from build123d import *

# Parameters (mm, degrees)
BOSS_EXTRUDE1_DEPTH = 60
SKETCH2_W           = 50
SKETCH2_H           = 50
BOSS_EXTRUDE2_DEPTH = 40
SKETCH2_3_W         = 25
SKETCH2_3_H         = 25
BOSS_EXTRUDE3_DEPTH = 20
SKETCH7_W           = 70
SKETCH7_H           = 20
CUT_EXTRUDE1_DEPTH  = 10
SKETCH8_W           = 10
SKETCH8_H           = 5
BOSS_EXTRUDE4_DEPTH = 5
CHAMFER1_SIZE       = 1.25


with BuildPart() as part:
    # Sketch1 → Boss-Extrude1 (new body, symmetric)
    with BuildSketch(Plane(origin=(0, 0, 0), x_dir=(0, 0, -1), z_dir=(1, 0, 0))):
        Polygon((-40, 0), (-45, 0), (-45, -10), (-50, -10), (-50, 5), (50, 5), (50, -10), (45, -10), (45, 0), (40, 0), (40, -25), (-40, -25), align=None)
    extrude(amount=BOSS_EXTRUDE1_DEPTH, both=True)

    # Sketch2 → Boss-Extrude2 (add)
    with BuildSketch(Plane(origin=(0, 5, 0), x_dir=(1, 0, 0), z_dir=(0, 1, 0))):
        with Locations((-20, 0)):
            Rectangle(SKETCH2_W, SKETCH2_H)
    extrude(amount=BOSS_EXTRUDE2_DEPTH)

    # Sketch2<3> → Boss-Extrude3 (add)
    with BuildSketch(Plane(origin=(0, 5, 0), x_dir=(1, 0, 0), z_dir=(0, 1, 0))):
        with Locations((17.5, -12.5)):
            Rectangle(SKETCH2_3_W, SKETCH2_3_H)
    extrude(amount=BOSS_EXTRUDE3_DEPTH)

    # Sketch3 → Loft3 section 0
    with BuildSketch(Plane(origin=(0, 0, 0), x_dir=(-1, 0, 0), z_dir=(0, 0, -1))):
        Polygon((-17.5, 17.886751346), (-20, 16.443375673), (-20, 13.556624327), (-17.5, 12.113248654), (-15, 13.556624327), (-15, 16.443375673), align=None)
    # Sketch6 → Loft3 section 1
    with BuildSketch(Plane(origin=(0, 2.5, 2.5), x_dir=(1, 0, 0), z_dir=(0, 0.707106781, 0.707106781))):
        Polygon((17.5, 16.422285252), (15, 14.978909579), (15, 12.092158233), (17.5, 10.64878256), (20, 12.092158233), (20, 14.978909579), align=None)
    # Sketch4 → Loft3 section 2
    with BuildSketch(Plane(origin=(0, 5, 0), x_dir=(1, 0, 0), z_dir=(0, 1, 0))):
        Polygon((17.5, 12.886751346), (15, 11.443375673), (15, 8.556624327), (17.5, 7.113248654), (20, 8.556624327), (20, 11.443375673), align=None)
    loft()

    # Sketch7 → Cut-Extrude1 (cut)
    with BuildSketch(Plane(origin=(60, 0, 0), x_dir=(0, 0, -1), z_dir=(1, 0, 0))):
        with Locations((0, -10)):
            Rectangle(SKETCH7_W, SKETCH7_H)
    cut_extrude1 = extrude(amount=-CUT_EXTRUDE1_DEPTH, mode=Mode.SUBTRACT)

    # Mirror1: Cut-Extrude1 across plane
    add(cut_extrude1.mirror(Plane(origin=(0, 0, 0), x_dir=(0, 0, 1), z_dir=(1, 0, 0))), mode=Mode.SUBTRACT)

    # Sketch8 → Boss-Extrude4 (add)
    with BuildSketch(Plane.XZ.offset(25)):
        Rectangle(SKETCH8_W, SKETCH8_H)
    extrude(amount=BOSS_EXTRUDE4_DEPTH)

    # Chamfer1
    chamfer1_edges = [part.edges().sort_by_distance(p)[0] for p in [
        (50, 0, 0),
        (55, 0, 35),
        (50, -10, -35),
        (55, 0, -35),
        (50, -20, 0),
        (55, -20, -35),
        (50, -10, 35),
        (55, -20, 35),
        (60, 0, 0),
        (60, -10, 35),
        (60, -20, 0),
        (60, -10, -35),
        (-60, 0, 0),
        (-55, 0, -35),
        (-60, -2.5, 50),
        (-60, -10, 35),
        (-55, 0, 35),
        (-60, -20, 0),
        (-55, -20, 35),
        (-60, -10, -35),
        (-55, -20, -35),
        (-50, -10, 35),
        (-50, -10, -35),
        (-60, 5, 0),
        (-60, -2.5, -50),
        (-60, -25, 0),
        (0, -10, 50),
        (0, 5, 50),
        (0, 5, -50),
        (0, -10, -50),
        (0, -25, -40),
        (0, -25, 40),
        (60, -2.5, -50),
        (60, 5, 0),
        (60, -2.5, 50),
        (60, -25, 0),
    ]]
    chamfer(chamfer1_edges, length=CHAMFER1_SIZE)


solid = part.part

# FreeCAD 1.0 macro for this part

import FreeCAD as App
import Part
import Sketcher
Q = App.Units.Quantity


def edges_at(feature, points):
    """Names of the edges that pass closest to the given points."""
    edges = feature.Shape.Edges
    near = lambda p: min(range(len(edges)), key=lambda i: edges[i].distToShape(Part.Vertex(*p))[0])
    return sorted({f"Edge{near(p) + 1}" for p in points})


def add_polygon(sketch, points):
    """Adds a closed chain of lines whose ends are joined by coincident constraints."""
    first, n = sketch.GeometryCount, len(points)
    for a, b in zip(points, points[1:] + points[:1]):
        sketch.addGeometry(Part.LineSegment(App.Vector(*a, 0), App.Vector(*b, 0)), False)
    for i in range(n):
        sketch.addConstraint(Sketcher.Constraint("Coincident", first + i, 2, first + (i + 1) % n, 1))

doc = App.newDocument("Part")
body = doc.addObject("PartDesign::Body", "Body")

sketch1 = body.newObject("Sketcher::SketchObject", "Sketch")
sketch1.AttachmentSupport = (doc.getObject("YZ_Plane"), [""])
sketch1.MapMode = "FlatFace"
add_polygon(sketch1, [(0, 45), (0, 40), (-25, 40), (-25, -40), (0, -40), (0, -45), (-10, -45), (-10, -50), (5, -50), (5, 50), (-10, 50), (-10, 45)])
sketch1.addConstraint(Sketcher.Constraint("Vertical", 0))
sketch1.addConstraint(Sketcher.Constraint("Horizontal", 1))
sketch1.addConstraint(Sketcher.Constraint("Vertical", 2))
sketch1.addConstraint(Sketcher.Constraint("Horizontal", 3))
sketch1.addConstraint(Sketcher.Constraint("Vertical", 4))
sketch1.addConstraint(Sketcher.Constraint("Horizontal", 5))
sketch1.addConstraint(Sketcher.Constraint("Vertical", 6))
sketch1.addConstraint(Sketcher.Constraint("Horizontal", 7))
sketch1.addConstraint(Sketcher.Constraint("Vertical", 8))
sketch1.addConstraint(Sketcher.Constraint("Horizontal", 9))
sketch1.addConstraint(Sketcher.Constraint("Vertical", 10))
sketch1.addConstraint(Sketcher.Constraint("Horizontal", 11))
sketch1.addConstraint(Sketcher.Constraint("Symmetric", 0, 2, 3, 2, -1, 1))
sketch1.addConstraint(Sketcher.Constraint("Symmetric", 6, 2, 9, 2, -1))
sketch1.addConstraint(Sketcher.Constraint("Symmetric", 4, 2, 11, 2, -1))
sketch1.addConstraint(Sketcher.Constraint("Equal", 4, 6))
sketch1.addConstraint(Sketcher.Constraint("DistanceX", 1, 2, 1, 1, 25.0))
sketch1.addConstraint(Sketcher.Constraint("DistanceX", 5, 2, 5, 1, 10.0))
sketch1.addConstraint(Sketcher.Constraint("DistanceX", 7, 1, 7, 2, 15.0))
sketch1.addConstraint(Sketcher.Constraint("DistanceY", 0, 2, 0, 1, 5.0))
sketch1.addConstraint(Sketcher.Constraint("DistanceY", 2, 2, 2, 1, 80.0))
pad1 = body.newObject("PartDesign::Pad", "Pad")
pad1.Profile = sketch1
pad1.Length = 120
pad1.Midplane = True

sketch2 = body.newObject("Sketcher::SketchObject", "Sketch001")
sketch2.AttachmentSupport = (doc.getObject("XZ_Plane"), [""])
sketch2.MapMode = "FlatFace"
sketch2.AttachmentOffset = App.Placement(App.Vector(0, 0, -5), App.Rotation())
add_polygon(sketch2, [(-45, -25), (-45, 25), (5, 25), (5, -25)])
sketch2.addConstraint(Sketcher.Constraint("Vertical", 0))
sketch2.addConstraint(Sketcher.Constraint("Horizontal", 1))
sketch2.addConstraint(Sketcher.Constraint("Vertical", 2))
sketch2.addConstraint(Sketcher.Constraint("Horizontal", 3))
sketch2.addConstraint(Sketcher.Constraint("Equal", 3, 0))
sketch2.addConstraint(Sketcher.Constraint("DistanceX", 1, 1, 1, 2, 50.0))
sketch2.addConstraint(Sketcher.Constraint("DistanceX", 0, 2, -1, 1, 45.0))
sketch2.addConstraint(Sketcher.Constraint("DistanceY", -1, 1, 0, 2, 25.0))
pad2 = body.newObject("PartDesign::Pad", "Pad001")
pad2.Profile = sketch2
pad2.Length = 40
pad2.Reversed = True

sketch3 = body.newObject("Sketcher::SketchObject", "Sketch002")
sketch3.AttachmentSupport = (doc.getObject("XZ_Plane"), [""])
sketch3.MapMode = "FlatFace"
sketch3.AttachmentOffset = App.Placement(App.Vector(0, 0, -5), App.Rotation())
add_polygon(sketch3, [(5, 0), (5, 25), (30, 25), (30, 0)])
sketch3.addConstraint(Sketcher.Constraint("Vertical", 0))
sketch3.addConstraint(Sketcher.Constraint("Horizontal", 1))
sketch3.addConstraint(Sketcher.Constraint("Vertical", 2))
sketch3.addConstraint(Sketcher.Constraint("Horizontal", 3))
sketch3.addConstraint(Sketcher.Constraint("PointOnObject", 2, 2, -1))
sketch3.addConstraint(Sketcher.Constraint("Equal", 3, 0))
sketch3.addConstraint(Sketcher.Constraint("DistanceX", 1, 1, 1, 2, 25.0))
sketch3.addConstraint(Sketcher.Constraint("DistanceX", -1, 1, 0, 2, 5.0))
pad3 = body.newObject("PartDesign::Pad", "Pad002")
pad3.Profile = sketch3
pad3.Length = 20
pad3.Reversed = True

sketch4 = body.newObject("Sketcher::SketchObject", "Sketch003")
sketch4.AttachmentSupport = (doc.getObject("XY_Plane"), [""])
sketch4.MapMode = "FlatFace"
add_polygon(sketch4, [(17.5, 17.886751), (20, 16.443376), (20, 13.556624), (17.5, 12.113249), (15, 13.556624), (15, 16.443376)])
sketch4.addConstraint(Sketcher.Constraint("Vertical", 1))
sketch4.addConstraint(Sketcher.Constraint("Vertical", 4))
sketch4.addConstraint(Sketcher.Constraint("Parallel", 0, 3))
sketch4.addConstraint(Sketcher.Constraint("Parallel", 2, 5))
sketch4.addConstraint(Sketcher.Constraint("Horizontal", 1, 2, 3, 2))
sketch4.addConstraint(Sketcher.Constraint("Horizontal", 0, 2, 4, 2))
sketch4.addConstraint(Sketcher.Constraint("Vertical", 2, 2, 5, 2))
sketch4.addConstraint(Sketcher.Constraint("Angle", 0, Q("-30 deg")))
sketch4.addConstraint(Sketcher.Constraint("DistanceX", -1, 1, 0, 2, 20.0))
sketch4.addConstraint(Sketcher.Constraint("DistanceX", -1, 1, 3, 2, 15.0))
sketch4.addConstraint(Sketcher.Constraint("DistanceY", 1, 2, 1, 1, 2.886751))
sketch4.addConstraint(Sketcher.Constraint("DistanceY", -1, 1, 2, 2, 12.113249))

sketch5 = body.newObject("Sketcher::SketchObject", "Sketch004")
sketch5.Placement = App.Placement(App.Vector(0, 2.5, 2.5), App.Rotation(App.Vector(1, 0, 0), App.Vector(0, 0.707106781, -0.707106781), App.Vector(0, 0.707106781, 0.707106781), "ZXY"))
add_polygon(sketch5, [(17.5, 16.422285), (15, 14.97891), (15, 12.092158), (17.5, 10.648783), (20, 12.092158), (20, 14.97891)])
sketch5.addConstraint(Sketcher.Constraint("Vertical", 1))
sketch5.addConstraint(Sketcher.Constraint("Vertical", 4))
sketch5.addConstraint(Sketcher.Constraint("Parallel", 0, 3))
sketch5.addConstraint(Sketcher.Constraint("Parallel", 2, 5))
sketch5.addConstraint(Sketcher.Constraint("Horizontal", 1, 2, 3, 2))
sketch5.addConstraint(Sketcher.Constraint("Horizontal", 0, 2, 4, 2))
sketch5.addConstraint(Sketcher.Constraint("Vertical", 2, 2, 5, 2))
sketch5.addConstraint(Sketcher.Constraint("Angle", 0, Q("-150 deg")))
sketch5.addConstraint(Sketcher.Constraint("DistanceX", -1, 1, 0, 2, 15.0))
sketch5.addConstraint(Sketcher.Constraint("DistanceX", -1, 1, 3, 2, 20.0))
sketch5.addConstraint(Sketcher.Constraint("DistanceY", 1, 2, 1, 1, 2.886751))
sketch5.addConstraint(Sketcher.Constraint("DistanceY", -1, 1, 0, 2, 14.97891))

sketch6 = body.newObject("Sketcher::SketchObject", "Sketch005")
sketch6.AttachmentSupport = (doc.getObject("XZ_Plane"), [""])
sketch6.MapMode = "FlatFace"
sketch6.AttachmentOffset = App.Placement(App.Vector(0, 0, -5), App.Rotation())
add_polygon(sketch6, [(17.5, -12.886751), (15, -11.443376), (15, -8.556624), (17.5, -7.113249), (20, -8.556624), (20, -11.443376)])
sketch6.addConstraint(Sketcher.Constraint("Vertical", 1))
sketch6.addConstraint(Sketcher.Constraint("Vertical", 4))
sketch6.addConstraint(Sketcher.Constraint("Parallel", 0, 3))
sketch6.addConstraint(Sketcher.Constraint("Parallel", 2, 5))
sketch6.addConstraint(Sketcher.Constraint("Horizontal", 1, 2, 3, 2))
sketch6.addConstraint(Sketcher.Constraint("Horizontal", 0, 2, 4, 2))
sketch6.addConstraint(Sketcher.Constraint("Vertical", 2, 2, 5, 2))
sketch6.addConstraint(Sketcher.Constraint("Angle", 0, Q("150 deg")))
sketch6.addConstraint(Sketcher.Constraint("DistanceX", -1, 1, 0, 2, 15.0))
sketch6.addConstraint(Sketcher.Constraint("DistanceX", -1, 1, 3, 2, 20.0))
sketch6.addConstraint(Sketcher.Constraint("DistanceY", 1, 1, 1, 2, 2.886751))
sketch6.addConstraint(Sketcher.Constraint("DistanceY", 2, 2, -1, 1, 7.113249))

additiveloft = body.newObject("PartDesign::AdditiveLoft", "AdditiveLoft")
additiveloft.Profile = sketch4
additiveloft.Sections = [sketch5, sketch6]

sketch7 = body.newObject("Sketcher::SketchObject", "Sketch006")
sketch7.AttachmentSupport = (doc.getObject("YZ_Plane"), [""])
sketch7.MapMode = "FlatFace"
sketch7.AttachmentOffset = App.Placement(App.Vector(0, 0, 60), App.Rotation())
add_polygon(sketch7, [(0, 35), (-20, 35), (-20, -35), (0, -35)])
sketch7.addConstraint(Sketcher.Constraint("Horizontal", 0))
sketch7.addConstraint(Sketcher.Constraint("Vertical", 1))
sketch7.addConstraint(Sketcher.Constraint("Horizontal", 2))
sketch7.addConstraint(Sketcher.Constraint("Vertical", 3))
sketch7.addConstraint(Sketcher.Constraint("Symmetric", 2, 2, 3, 2, -1, 1))
sketch7.addConstraint(Sketcher.Constraint("DistanceX", 0, 2, 0, 1, 20.0))
sketch7.addConstraint(Sketcher.Constraint("DistanceY", 1, 2, 1, 1, 70.0))
pocket1 = body.newObject("PartDesign::Pocket", "Pocket")
pocket1.Profile = sketch7
pocket1.Length = 10
doc.recompute()

mirrored = body.newObject("PartDesign::Mirrored", "Mirrored")
mirrored.Originals = [pocket1]
mirrored.MirrorPlane = (doc.getObject("YZ_Plane"), [""])
body.Tip = mirrored

sketch8 = body.newObject("Sketcher::SketchObject", "Sketch007")
sketch8.AttachmentSupport = (doc.getObject("XZ_Plane"), [""])
sketch8.MapMode = "FlatFace"
sketch8.AttachmentOffset = App.Placement(App.Vector(0, 0, 25), App.Rotation())
add_polygon(sketch8, [(-5, 2.5), (-5, -2.5), (5, -2.5), (5, 2.5)])
sketch8.addConstraint(Sketcher.Constraint("Vertical", 0))
sketch8.addConstraint(Sketcher.Constraint("Horizontal", 1))
sketch8.addConstraint(Sketcher.Constraint("Vertical", 2))
sketch8.addConstraint(Sketcher.Constraint("Horizontal", 3))
sketch8.addConstraint(Sketcher.Constraint("Symmetric", 0, 2, 2, 2, -1, 1))
sketch8.addConstraint(Sketcher.Constraint("DistanceX", 1, 1, 1, 2, 10.0))
sketch8.addConstraint(Sketcher.Constraint("DistanceY", 0, 2, 0, 1, 5.0))
pad4 = body.newObject("PartDesign::Pad", "Pad003")
pad4.Profile = sketch8
pad4.Length = 5
doc.recompute()

chamfer = body.newObject("PartDesign::Chamfer", "Chamfer")
chamfer.Base = (pad4, edges_at(pad4, [
    (50, 0, 0),
    (55, 0, 35),
    (50, -10, -35),
    (55, 0, -35),
    (50, -20, 0),
    (55, -20, -35),
    (50, -10, 35),
    (55, -20, 35),
    (60, 0, 0),
    (60, -10, 35),
    (60, -20, 0),
    (60, -10, -35),
    (-60, 0, 0),
    (-55, 0, -35),
    (-60, -2.5, 50),
    (-60, -10, 35),
    (-55, 0, 35),
    (-60, -20, 0),
    (-55, -20, 35),
    (-60, -10, -35),
    (-55, -20, -35),
    (-50, -10, 35),
    (-50, -10, -35),
    (-60, 5, 0),
    (-60, -2.5, -50),
    (-60, -25, 0),
    (0, -10, 50),
    (0, 5, 50),
    (0, 5, -50),
    (0, -10, -50),
    (0, -25, -40),
    (0, -25, 40),
    (60, -2.5, -50),
    (60, 5, 0),
    (60, -2.5, 50),
    (60, -25, 0),
]))
chamfer.Size = 1.25

doc.recompute()
